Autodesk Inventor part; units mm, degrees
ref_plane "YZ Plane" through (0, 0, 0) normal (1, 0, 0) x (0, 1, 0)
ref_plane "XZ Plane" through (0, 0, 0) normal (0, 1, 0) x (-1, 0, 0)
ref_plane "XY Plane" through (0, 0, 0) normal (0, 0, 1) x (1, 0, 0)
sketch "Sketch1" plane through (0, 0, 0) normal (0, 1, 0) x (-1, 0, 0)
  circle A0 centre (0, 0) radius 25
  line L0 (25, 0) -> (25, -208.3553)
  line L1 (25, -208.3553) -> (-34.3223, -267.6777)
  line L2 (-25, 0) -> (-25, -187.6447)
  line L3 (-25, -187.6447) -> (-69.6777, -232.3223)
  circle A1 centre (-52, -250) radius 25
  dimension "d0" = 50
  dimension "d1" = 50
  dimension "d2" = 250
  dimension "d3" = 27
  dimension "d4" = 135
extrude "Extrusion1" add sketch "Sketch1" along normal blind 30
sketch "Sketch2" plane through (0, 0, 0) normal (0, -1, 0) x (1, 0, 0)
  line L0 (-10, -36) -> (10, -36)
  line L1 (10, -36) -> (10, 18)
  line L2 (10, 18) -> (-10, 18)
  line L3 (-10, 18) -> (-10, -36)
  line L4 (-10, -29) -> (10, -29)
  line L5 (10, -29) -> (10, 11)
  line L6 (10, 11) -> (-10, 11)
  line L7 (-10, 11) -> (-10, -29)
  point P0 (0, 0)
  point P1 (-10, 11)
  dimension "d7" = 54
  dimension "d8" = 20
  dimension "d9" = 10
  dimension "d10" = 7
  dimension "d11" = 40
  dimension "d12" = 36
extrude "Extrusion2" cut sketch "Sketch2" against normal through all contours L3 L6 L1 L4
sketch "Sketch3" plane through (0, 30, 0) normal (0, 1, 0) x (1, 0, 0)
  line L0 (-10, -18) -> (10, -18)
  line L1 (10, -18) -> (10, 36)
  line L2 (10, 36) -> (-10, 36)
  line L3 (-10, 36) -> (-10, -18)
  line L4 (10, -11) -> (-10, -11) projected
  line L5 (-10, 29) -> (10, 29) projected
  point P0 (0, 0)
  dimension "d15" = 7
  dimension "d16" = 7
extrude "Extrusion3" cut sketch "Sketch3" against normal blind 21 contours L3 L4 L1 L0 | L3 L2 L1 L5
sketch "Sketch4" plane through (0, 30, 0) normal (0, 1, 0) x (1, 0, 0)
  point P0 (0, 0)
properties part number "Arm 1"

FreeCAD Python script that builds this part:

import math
import FreeCAD as App
import Part
import Sketcher

V = App.Vector
Q = App.Units.Quantity


def add_polygon(sketch, points):
    """Adds a closed chain of lines whose ends are joined by coincident constraints."""
    first, n = sketch.GeometryCount, len(points)
    for a, b in zip(points, points[1:] + points[:1]):
        sketch.addGeometry(Part.LineSegment(App.Vector(*a, 0), App.Vector(*b, 0)), False)
    for i in range(n):
        sketch.addConstraint(Sketcher.Constraint("Coincident", first + i, 2, first + (i + 1) % n, 1))

doc = App.newDocument("Part")
params = doc.addObject("Spreadsheet::Sheet", "Params")
for row, (alias, value) in enumerate([
    ("sketch1_radius", "25 mm"),
    ("pad1_length", "30 mm"),
    ("sketch2_width", "20 mm"),
    ("sketch2_height", "40 mm"),
    ("sketch3_height", "7 mm"),
    ("sketch3_width", "20 mm"),
    ("pocket2_length", "21 mm"),
], start=1):
    params.set(f"A{row}", alias)
    params.set(f"B{row}", "=" + value)
    params.setAlias(f"B{row}", alias)

body = doc.addObject("PartDesign::Body", "Body")

# Sketch on XZ plane
sketch1 = doc.addObject("Sketcher::SketchObject", "Sketch")
body.addObject(sketch1)
sketch1.AttachmentSupport = (doc.XZ_Plane, [""])
sketch1.MapMode = "FlatFace"
sketch1.addGeometry([
    Part.ArcOfCircle(Part.Circle(V(0, 0, 0), V(0, 0, 1), 25), math.radians(0), math.radians(180)),  # 0
    Part.LineSegment(V(25, 0, 0), V(25, -187.6447, 0)),  # 1
    Part.LineSegment(V(25, -187.6447, 0), V(69.6777, -232.3223, 0)),  # 2
    Part.ArcOfCircle(Part.Circle(V(52, -250, 0), V(0, 0, 1), 25), math.radians(-135), math.radians(45)),  # 3
    Part.LineSegment(V(34.3223, -267.6777, 0), V(-25, -208.3553, 0)),  # 4
    Part.LineSegment(V(-25, -208.3553, 0), V(-25, 0, 0)),  # 5
], False)
sketch1.addConstraint([
    Sketcher.Constraint("Tangent", 0, 1, 1, 1),
    Sketcher.Constraint("Coincident", 1, 2, 2, 1),
    Sketcher.Constraint("Tangent", 2, 2, 3, 2),
    Sketcher.Constraint("Tangent", 3, 1, 4, 1),
    Sketcher.Constraint("Coincident", 4, 2, 5, 1),
    Sketcher.Constraint("Tangent", 5, 2, 0, 2),
    Sketcher.Constraint("Vertical", 1),
    Sketcher.Constraint("Vertical", 5),
    Sketcher.Constraint("Coincident", 0, 3, -1, 1),
    Sketcher.Constraint("Equal", 0, 3),
    Sketcher.Constraint("Parallel", 2, 4),
    Sketcher.Constraint("Radius", 0, 25.0),
    Sketcher.Constraint("Angle", 4, Q("135 deg")),
    Sketcher.Constraint("DistanceY", 3, 3, -1, 1, 250.0),
    Sketcher.Constraint("DistanceX", 0, 1, 3, 3, 27.0),
])
sketch1.setExpression("Constraints[11]", "Params.sketch1_radius")
pad1 = doc.addObject("PartDesign::Pad", "Pad")
body.addObject(pad1)
pad1.Profile = sketch1
pad1.setExpression("Length", "Params.pad1_length")
pad1.Reversed = True

# Sketch on XZ plane
sketch2 = doc.addObject("Sketcher::SketchObject", "Sketch001")
body.addObject(sketch2)
sketch2.AttachmentSupport = (doc.XZ_Plane, [""])
sketch2.MapMode = "FlatFace"
add_polygon(sketch2, [(-10, 11), (-10, -29), (10, -29), (10, 11)])  # lines 0-3
sketch2.addConstraint([
    Sketcher.Constraint("Vertical", 0),
    Sketcher.Constraint("Horizontal", 1),
    Sketcher.Constraint("Vertical", 2),
    Sketcher.Constraint("Horizontal", 3),
    Sketcher.Constraint("DistanceX", 1, 1, 1, 2, 20.0),
    Sketcher.Constraint("DistanceY", 0, 2, 0, 1, 40.0),
    Sketcher.Constraint("DistanceX", 0, 2, -1, 1, 10.0),
    Sketcher.Constraint("DistanceY", 0, 2, -1, 1, 29.0),
])
sketch2.setExpression("Constraints[8]", "Params.sketch2_width")
sketch2.setExpression("Constraints[9]", "Params.sketch2_height")
pocket1 = doc.addObject("PartDesign::Pocket", "Pocket")
body.addObject(pocket1)
pocket1.Profile = sketch2
pocket1.Type = "ThroughAll"

# Sketch on XZ plane
sketch3 = doc.addObject("Sketcher::SketchObject", "Sketch002")
body.addObject(sketch3)
sketch3.AttachmentSupport = (doc.XZ_Plane, [""])
sketch3.MapMode = "FlatFace"
sketch3.AttachmentOffset = App.Placement(V(0, 0, -30), App.Rotation())
add_polygon(sketch3, [(-10, 11), (-10, 18), (10, 18), (10, 11)])  # lines 0-3
add_polygon(sketch3, [(-10, -36), (-10, -29), (10, -29), (10, -36)])  # lines 4-7
sketch3.addConstraint([
    Sketcher.Constraint("Vertical", 0),
    Sketcher.Constraint("Horizontal", 1),
    Sketcher.Constraint("Vertical", 2),
    Sketcher.Constraint("Horizontal", 3),
    Sketcher.Constraint("Vertical", 4),
    Sketcher.Constraint("Horizontal", 5),
    Sketcher.Constraint("Vertical", 6),
    Sketcher.Constraint("Horizontal", 7),
    Sketcher.Constraint("Vertical", 3, 2, 4, 2),
    Sketcher.Constraint("Vertical", 2, 2, 5, 2),
    Sketcher.Constraint("Equal", 2, 4),
    Sketcher.Constraint("DistanceY", 0, 1, 0, 2, 7.0),
    Sketcher.Constraint("DistanceX", 1, 1, 1, 2, 20.0),
    Sketcher.Constraint("DistanceX", 0, 2, -1, 1, 10.0),
    Sketcher.Constraint("DistanceY", -1, 1, 0, 2, 18.0),
    Sketcher.Constraint("DistanceY", 4, 2, -1, 1, 29.0),
])
sketch3.setExpression("Constraints[19]", "Params.sketch3_height")
sketch3.setExpression("Constraints[20]", "Params.sketch3_width")
pocket2 = doc.addObject("PartDesign::Pocket", "Pocket001")
body.addObject(pocket2)
pocket2.Profile = sketch3
pocket2.setExpression("Length", "Params.pocket2_length")
pocket2.Reversed = True

doc.recompute()
